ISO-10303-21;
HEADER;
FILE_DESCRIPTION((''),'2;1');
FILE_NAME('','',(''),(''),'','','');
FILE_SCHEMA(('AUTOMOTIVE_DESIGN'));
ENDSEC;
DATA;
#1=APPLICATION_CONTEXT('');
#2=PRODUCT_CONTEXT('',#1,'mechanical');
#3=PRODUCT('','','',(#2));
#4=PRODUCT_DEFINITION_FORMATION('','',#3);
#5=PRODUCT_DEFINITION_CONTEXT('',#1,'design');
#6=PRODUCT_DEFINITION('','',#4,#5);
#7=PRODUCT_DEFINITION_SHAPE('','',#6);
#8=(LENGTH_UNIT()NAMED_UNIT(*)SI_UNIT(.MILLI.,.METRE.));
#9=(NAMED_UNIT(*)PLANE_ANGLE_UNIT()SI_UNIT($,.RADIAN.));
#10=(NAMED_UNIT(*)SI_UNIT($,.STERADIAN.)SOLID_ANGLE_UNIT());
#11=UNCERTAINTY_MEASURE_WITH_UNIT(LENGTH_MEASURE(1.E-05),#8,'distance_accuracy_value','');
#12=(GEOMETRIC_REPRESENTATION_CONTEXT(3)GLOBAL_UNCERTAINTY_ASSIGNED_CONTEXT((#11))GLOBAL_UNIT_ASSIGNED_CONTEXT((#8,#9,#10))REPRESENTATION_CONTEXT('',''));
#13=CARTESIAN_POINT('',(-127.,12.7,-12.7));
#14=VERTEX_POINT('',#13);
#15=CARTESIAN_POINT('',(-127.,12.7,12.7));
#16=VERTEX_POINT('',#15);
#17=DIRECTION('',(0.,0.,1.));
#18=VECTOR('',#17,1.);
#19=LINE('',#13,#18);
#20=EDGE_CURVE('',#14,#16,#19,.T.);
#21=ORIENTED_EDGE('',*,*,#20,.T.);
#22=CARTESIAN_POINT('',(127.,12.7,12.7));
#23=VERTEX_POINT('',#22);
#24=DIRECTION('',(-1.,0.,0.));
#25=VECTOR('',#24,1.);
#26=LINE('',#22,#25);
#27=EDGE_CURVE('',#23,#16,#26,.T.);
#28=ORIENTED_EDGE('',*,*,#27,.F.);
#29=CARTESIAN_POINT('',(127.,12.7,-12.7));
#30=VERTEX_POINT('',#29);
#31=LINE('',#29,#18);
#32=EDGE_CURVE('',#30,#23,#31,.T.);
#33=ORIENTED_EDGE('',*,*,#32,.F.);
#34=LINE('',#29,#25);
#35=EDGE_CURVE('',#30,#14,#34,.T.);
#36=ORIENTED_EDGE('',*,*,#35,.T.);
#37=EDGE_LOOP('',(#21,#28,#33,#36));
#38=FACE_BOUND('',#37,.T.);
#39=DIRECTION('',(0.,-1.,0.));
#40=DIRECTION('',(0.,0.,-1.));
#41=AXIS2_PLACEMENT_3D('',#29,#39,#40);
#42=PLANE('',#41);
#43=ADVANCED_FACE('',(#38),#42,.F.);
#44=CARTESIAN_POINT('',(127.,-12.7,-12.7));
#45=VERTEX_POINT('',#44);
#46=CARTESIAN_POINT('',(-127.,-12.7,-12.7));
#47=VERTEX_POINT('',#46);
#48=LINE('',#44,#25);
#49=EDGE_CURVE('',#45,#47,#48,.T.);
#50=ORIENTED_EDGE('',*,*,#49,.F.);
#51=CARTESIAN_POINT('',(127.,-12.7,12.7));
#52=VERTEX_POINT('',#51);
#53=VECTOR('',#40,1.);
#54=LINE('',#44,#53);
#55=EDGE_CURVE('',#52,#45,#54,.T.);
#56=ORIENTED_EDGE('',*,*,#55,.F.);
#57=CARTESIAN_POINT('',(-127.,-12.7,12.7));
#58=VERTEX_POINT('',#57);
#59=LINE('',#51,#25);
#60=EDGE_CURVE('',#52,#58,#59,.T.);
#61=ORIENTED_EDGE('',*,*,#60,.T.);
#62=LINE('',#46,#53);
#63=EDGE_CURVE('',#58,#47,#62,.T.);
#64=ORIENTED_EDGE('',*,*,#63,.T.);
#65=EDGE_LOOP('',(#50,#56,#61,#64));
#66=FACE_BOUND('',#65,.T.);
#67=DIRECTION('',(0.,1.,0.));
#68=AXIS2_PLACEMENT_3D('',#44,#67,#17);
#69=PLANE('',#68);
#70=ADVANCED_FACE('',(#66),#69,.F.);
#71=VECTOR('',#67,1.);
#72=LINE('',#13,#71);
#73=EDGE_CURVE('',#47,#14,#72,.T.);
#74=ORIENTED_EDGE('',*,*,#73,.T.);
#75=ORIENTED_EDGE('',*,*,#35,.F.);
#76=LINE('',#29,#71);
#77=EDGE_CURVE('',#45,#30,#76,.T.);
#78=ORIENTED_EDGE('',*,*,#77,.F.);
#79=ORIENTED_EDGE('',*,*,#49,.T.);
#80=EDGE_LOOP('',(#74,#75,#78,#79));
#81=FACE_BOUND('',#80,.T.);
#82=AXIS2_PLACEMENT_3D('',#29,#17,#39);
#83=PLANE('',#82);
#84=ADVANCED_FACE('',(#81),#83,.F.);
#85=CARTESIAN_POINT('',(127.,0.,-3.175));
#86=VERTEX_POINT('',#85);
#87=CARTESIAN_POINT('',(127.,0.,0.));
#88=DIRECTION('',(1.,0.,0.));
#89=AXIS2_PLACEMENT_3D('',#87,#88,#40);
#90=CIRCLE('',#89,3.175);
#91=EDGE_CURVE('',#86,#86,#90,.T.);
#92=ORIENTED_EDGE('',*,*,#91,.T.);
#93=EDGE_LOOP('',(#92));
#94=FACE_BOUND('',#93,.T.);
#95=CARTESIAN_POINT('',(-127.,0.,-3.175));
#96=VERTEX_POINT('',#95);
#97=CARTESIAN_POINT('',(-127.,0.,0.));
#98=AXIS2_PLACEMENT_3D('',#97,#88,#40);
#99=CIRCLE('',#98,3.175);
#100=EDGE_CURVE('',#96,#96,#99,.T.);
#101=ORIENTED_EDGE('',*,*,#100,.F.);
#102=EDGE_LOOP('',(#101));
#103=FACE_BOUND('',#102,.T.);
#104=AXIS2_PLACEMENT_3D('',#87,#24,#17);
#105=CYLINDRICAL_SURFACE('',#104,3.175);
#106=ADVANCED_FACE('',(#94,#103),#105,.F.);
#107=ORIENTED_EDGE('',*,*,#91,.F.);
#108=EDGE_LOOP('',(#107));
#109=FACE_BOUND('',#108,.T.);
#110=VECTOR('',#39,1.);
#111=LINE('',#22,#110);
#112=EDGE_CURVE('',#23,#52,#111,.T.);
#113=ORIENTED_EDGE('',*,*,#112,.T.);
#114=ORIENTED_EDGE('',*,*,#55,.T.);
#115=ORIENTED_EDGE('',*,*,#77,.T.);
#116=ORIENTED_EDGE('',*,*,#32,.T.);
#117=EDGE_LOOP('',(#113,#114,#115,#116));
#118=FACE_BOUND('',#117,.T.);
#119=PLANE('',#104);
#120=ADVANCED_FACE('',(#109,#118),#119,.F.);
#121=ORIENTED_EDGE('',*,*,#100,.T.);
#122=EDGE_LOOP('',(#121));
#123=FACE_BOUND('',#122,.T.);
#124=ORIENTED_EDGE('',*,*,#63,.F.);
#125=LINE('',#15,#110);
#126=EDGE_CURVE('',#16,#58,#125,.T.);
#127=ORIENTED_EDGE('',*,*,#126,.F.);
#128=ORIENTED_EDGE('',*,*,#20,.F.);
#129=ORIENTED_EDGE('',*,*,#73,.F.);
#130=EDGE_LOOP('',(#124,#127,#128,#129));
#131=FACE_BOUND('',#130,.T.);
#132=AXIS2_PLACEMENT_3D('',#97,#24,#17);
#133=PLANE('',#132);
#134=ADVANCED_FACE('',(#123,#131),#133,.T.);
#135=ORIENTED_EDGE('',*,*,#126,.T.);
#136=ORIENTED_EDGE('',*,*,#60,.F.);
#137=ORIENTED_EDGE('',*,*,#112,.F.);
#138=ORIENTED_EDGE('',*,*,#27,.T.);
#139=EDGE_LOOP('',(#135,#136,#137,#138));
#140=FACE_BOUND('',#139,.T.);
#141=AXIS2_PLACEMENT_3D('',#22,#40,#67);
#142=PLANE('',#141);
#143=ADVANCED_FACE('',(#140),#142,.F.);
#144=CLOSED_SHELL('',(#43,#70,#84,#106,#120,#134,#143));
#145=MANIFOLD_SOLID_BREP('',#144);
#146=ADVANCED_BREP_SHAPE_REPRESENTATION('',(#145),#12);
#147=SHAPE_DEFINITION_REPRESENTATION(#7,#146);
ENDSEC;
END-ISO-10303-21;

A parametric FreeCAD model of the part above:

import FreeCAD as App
import Part
import Sketcher
Q = App.Units.Quantity


def add_polygon(sketch, points):
    """Adds a closed chain of lines whose ends are joined by coincident constraints."""
    first, n = sketch.GeometryCount, len(points)
    for a, b in zip(points, points[1:] + points[:1]):
        sketch.addGeometry(Part.LineSegment(App.Vector(*a, 0), App.Vector(*b, 0)), False)
    for i in range(n):
        sketch.addConstraint(Sketcher.Constraint("Coincident", first + i, 2, first + (i + 1) % n, 1))

doc = App.newDocument("Part")
params = doc.addObject("Spreadsheet::Sheet", "Params")
for row, (alias, value) in enumerate([
    ("sketch1_diameter", "0.25 in"),
    ("sketch1_width", "1 in"),
    ("pad1_length", "10 in"),
], start=1):
    params.set(f"A{row}", alias)
    params.set(f"B{row}", "=" + value)
    params.setAlias(f"B{row}", alias)

body = doc.addObject("PartDesign::Body", "Body")

# Sketch on YZ plane
sketch1 = body.newObject("Sketcher::SketchObject", "Sketch")
sketch1.AttachmentSupport = (doc.getObject("YZ_Plane"), [""])
sketch1.MapMode = "FlatFace"
add_polygon(sketch1, [(12.7, 12.7), (-12.7, 12.7), (-12.7, -12.7), (12.7, -12.7)])  # lines 0-3
sketch1.addGeometry(Part.Circle(App.Vector(0, 0, 0), App.Vector(0, 0, 1), 3.175), False)  # 4
sketch1.addConstraint([
    Sketcher.Constraint("Horizontal", 0),
    Sketcher.Constraint("Vertical", 1),
    Sketcher.Constraint("Horizontal", 2),
    Sketcher.Constraint("Vertical", 3),
    Sketcher.Constraint("Coincident", 4, 3, -1, 1),
    Sketcher.Constraint("Symmetric", 0, 2, 2, 2, -1, 1),
    Sketcher.Constraint("Equal", 2, 1),
    Sketcher.Constraint("Diameter", 4, Q("0.25 in")),
    Sketcher.Constraint("DistanceX", 0, 2, 0, 1, Q("1 in")),
])
sketch1.setExpression("Constraints[11]", "Params.sketch1_diameter")
sketch1.setExpression("Constraints[12]", "Params.sketch1_width")
pad1 = body.newObject("PartDesign::Pad", "Pad")
pad1.Profile = sketch1
pad1.setExpression("Length", "Params.pad1_length")
pad1.Midplane = True

doc.recompute()
